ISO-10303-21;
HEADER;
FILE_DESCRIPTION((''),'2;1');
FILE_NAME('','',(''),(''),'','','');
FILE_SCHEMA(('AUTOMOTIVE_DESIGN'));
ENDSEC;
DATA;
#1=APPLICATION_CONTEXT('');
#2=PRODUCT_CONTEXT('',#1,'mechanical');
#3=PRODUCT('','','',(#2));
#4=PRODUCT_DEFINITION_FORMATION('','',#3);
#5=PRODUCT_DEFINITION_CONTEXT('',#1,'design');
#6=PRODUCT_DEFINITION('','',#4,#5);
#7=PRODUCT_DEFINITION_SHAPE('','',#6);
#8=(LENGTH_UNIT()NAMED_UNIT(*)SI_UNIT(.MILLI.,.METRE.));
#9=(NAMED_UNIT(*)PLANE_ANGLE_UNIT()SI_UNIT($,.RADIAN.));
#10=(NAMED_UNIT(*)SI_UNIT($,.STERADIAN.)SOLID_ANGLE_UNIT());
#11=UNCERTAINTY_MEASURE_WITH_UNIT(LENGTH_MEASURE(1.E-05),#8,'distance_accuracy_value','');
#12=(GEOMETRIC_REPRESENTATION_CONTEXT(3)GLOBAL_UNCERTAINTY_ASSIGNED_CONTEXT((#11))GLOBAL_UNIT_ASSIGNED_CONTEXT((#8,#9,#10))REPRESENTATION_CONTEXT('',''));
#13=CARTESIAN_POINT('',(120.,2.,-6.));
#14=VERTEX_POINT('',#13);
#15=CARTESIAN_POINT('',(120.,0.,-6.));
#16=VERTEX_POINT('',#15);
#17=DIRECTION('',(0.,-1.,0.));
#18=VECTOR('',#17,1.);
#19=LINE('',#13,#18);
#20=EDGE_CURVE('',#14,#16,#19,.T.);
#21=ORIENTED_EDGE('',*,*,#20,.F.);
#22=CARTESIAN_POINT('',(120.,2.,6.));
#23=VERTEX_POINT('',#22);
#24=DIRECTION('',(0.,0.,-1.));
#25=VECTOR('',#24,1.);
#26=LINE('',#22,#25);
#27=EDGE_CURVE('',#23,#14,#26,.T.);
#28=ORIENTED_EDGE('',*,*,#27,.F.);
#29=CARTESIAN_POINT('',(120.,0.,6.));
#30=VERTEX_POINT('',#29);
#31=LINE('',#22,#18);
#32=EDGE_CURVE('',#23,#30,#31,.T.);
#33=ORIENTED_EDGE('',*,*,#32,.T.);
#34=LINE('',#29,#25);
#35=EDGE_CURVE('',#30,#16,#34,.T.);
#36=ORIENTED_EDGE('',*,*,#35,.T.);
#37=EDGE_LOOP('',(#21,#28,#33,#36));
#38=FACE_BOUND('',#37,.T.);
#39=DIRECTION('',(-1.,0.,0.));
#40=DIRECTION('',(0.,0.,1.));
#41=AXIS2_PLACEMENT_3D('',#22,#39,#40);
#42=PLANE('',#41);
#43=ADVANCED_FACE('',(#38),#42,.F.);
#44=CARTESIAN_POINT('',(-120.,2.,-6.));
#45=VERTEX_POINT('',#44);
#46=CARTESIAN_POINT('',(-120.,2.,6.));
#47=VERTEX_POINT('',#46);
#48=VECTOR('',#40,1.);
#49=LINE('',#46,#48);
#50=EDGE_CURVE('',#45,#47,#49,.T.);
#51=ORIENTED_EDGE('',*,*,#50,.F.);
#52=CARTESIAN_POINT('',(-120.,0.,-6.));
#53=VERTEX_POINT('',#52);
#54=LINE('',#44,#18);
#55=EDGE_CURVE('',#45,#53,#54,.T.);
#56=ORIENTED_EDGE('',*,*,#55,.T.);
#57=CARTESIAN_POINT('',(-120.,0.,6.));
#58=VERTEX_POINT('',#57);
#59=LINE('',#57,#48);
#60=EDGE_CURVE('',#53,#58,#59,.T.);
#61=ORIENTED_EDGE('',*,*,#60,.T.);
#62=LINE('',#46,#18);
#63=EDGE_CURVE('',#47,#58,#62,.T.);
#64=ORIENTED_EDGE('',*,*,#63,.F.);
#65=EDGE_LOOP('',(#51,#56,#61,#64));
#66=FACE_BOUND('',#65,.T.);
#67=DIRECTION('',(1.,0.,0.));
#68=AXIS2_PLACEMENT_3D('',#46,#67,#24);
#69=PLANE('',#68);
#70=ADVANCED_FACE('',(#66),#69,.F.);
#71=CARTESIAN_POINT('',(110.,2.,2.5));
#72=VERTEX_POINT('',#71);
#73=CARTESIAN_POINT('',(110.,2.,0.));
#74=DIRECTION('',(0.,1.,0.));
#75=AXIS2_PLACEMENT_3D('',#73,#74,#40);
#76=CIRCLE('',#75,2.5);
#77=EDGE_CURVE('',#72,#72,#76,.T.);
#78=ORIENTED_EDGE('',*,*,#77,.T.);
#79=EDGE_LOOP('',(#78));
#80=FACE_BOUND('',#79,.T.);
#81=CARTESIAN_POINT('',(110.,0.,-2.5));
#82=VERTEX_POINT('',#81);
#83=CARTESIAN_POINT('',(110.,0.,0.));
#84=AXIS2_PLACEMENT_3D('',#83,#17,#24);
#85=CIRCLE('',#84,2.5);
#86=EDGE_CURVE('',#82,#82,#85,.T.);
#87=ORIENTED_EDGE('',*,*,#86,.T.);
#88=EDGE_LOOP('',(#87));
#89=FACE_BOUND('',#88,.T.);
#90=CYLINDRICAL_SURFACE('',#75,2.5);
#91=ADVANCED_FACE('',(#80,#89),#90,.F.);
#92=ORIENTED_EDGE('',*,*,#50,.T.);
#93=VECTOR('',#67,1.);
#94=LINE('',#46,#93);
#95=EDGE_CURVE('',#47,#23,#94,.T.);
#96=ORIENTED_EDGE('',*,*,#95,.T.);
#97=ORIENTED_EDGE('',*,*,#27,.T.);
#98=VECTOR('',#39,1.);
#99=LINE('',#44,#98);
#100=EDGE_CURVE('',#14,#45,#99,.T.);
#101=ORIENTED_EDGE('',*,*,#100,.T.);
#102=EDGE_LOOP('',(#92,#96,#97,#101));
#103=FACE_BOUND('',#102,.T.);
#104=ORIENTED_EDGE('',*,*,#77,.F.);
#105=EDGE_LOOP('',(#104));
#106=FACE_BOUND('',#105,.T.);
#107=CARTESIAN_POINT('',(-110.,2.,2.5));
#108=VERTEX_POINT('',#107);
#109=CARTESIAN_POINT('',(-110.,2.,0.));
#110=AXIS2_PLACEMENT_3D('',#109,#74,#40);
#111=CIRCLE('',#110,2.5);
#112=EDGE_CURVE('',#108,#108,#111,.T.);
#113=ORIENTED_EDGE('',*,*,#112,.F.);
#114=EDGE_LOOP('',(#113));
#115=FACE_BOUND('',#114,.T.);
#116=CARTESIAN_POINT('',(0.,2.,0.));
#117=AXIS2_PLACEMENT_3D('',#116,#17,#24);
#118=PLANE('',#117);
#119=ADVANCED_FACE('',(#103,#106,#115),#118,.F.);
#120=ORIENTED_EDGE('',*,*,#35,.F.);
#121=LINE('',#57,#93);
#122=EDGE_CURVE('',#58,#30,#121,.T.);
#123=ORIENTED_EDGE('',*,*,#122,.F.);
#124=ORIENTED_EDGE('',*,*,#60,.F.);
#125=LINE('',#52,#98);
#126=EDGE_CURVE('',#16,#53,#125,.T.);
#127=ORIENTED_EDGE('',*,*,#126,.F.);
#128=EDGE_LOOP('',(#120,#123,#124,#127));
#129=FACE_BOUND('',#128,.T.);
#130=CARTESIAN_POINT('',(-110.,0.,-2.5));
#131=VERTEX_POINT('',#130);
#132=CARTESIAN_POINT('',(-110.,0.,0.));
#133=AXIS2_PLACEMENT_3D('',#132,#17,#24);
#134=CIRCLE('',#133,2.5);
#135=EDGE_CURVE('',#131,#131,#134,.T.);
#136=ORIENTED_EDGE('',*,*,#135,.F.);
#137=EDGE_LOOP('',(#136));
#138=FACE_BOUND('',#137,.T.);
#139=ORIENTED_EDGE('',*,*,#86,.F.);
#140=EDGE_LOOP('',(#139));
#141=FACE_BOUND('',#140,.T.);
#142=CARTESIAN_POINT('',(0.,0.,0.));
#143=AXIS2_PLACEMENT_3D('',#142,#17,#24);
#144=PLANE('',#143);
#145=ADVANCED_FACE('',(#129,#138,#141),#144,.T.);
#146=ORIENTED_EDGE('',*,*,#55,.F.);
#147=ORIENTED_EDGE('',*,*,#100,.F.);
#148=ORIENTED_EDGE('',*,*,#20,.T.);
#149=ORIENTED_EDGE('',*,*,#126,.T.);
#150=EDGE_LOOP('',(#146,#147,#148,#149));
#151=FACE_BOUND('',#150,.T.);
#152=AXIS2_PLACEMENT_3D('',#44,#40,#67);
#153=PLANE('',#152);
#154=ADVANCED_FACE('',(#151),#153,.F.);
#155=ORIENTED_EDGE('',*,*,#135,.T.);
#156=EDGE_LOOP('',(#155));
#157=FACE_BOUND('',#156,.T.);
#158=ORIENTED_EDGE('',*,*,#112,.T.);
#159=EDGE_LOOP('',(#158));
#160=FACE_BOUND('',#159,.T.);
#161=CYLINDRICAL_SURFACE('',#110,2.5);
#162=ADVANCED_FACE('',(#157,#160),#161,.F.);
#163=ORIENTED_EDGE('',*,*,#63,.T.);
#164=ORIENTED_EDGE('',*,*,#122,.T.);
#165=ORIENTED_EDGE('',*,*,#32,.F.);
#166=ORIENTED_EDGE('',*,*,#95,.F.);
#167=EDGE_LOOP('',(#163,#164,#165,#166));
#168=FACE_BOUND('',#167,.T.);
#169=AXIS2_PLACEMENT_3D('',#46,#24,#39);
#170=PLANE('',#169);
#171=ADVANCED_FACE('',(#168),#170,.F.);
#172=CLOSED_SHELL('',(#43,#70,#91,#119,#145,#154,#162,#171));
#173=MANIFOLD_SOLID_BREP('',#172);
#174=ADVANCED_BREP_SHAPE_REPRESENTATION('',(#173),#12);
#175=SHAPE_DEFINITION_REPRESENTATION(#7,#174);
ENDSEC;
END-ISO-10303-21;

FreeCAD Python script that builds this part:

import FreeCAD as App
import Part
import Sketcher
from FreeCAD import Vector
Q = App.Units.Quantity


def add_polygon(sketch, points):
    """Adds a closed chain of lines whose ends are joined by coincident constraints."""
    first, n = sketch.GeometryCount, len(points)
    for a, b in zip(points, points[1:] + points[:1]):
        sketch.addGeometry(Part.LineSegment(App.Vector(*a, 0), App.Vector(*b, 0)), False)
    for i in range(n):
        sketch.addConstraint(Sketcher.Constraint("Coincident", first + i, 2, first + (i + 1) % n, 1))

doc = App.newDocument("Part")
body = doc.addObject("PartDesign::Body", "Body")

sketch1 = body.newObject("Sketcher::SketchObject", "Sketch")
sketch1.AttachmentSupport = (doc.getObject("XZ_Plane"), [""])
sketch1.MapMode = "FlatFace"
add_polygon(sketch1, [(-120, -6), (-120, 6), (120, 6), (120, -6)])
sketch1.addConstraint(Sketcher.Constraint("Vertical", 0))
sketch1.addConstraint(Sketcher.Constraint("Horizontal", 1))
sketch1.addConstraint(Sketcher.Constraint("Vertical", 2))
sketch1.addConstraint(Sketcher.Constraint("Horizontal", 3))
sketch1.addConstraint(Sketcher.Constraint("Symmetric", 0, 2, 2, 2, -1, 1))
sketch1.addConstraint(Sketcher.Constraint("DistanceX", 1, 1, 1, 2, Q("240 mm")))
sketch1.addConstraint(Sketcher.Constraint("DistanceY", 0, 1, 0, 2, Q("12 mm")))
pad1 = body.newObject("PartDesign::Pad", "Pad")
pad1.Profile = sketch1
pad1.Length = 2
pad1.Reversed = True

sketch2 = body.newObject("Sketcher::SketchObject", "Sketch001")
sketch2.AttachmentSupport = (doc.getObject("XZ_Plane"), [""])
sketch2.MapMode = "FlatFace"
sketch2.AttachmentOffset = App.Placement(Vector(0, 0, -2), App.Rotation())
sketch2.addGeometry(Part.Circle(Vector(-110, 0, 0), Vector(0, 0, 1), 2.5), False)
sketch2.addGeometry(Part.Circle(Vector(110, 0, 0), Vector(0, 0, 1), 2.5), False)
sketch2.addConstraint(Sketcher.Constraint("Equal", 0, 1))
sketch2.addConstraint(Sketcher.Constraint("Symmetric", 0, 3, 1, 3, -1, 1))
sketch2.addConstraint(Sketcher.Constraint("PointOnObject", 0, 3, -1))
sketch2.addConstraint(Sketcher.Constraint("Diameter", 0, Q("5 mm")))
sketch2.addConstraint(Sketcher.Constraint("DistanceX", 0, 3, -1, 1, Q("110 mm")))
doc.recompute()
hole = body.newObject("PartDesign::Hole", "Hole")
hole.Profile = sketch2
hole.ThreadType = "None"
hole.Diameter = 5
hole.DepthType = "Dimension"
hole.Depth = 2
hole.DrillPoint = "Flat"
hole.Reversed = True

doc.recompute()
